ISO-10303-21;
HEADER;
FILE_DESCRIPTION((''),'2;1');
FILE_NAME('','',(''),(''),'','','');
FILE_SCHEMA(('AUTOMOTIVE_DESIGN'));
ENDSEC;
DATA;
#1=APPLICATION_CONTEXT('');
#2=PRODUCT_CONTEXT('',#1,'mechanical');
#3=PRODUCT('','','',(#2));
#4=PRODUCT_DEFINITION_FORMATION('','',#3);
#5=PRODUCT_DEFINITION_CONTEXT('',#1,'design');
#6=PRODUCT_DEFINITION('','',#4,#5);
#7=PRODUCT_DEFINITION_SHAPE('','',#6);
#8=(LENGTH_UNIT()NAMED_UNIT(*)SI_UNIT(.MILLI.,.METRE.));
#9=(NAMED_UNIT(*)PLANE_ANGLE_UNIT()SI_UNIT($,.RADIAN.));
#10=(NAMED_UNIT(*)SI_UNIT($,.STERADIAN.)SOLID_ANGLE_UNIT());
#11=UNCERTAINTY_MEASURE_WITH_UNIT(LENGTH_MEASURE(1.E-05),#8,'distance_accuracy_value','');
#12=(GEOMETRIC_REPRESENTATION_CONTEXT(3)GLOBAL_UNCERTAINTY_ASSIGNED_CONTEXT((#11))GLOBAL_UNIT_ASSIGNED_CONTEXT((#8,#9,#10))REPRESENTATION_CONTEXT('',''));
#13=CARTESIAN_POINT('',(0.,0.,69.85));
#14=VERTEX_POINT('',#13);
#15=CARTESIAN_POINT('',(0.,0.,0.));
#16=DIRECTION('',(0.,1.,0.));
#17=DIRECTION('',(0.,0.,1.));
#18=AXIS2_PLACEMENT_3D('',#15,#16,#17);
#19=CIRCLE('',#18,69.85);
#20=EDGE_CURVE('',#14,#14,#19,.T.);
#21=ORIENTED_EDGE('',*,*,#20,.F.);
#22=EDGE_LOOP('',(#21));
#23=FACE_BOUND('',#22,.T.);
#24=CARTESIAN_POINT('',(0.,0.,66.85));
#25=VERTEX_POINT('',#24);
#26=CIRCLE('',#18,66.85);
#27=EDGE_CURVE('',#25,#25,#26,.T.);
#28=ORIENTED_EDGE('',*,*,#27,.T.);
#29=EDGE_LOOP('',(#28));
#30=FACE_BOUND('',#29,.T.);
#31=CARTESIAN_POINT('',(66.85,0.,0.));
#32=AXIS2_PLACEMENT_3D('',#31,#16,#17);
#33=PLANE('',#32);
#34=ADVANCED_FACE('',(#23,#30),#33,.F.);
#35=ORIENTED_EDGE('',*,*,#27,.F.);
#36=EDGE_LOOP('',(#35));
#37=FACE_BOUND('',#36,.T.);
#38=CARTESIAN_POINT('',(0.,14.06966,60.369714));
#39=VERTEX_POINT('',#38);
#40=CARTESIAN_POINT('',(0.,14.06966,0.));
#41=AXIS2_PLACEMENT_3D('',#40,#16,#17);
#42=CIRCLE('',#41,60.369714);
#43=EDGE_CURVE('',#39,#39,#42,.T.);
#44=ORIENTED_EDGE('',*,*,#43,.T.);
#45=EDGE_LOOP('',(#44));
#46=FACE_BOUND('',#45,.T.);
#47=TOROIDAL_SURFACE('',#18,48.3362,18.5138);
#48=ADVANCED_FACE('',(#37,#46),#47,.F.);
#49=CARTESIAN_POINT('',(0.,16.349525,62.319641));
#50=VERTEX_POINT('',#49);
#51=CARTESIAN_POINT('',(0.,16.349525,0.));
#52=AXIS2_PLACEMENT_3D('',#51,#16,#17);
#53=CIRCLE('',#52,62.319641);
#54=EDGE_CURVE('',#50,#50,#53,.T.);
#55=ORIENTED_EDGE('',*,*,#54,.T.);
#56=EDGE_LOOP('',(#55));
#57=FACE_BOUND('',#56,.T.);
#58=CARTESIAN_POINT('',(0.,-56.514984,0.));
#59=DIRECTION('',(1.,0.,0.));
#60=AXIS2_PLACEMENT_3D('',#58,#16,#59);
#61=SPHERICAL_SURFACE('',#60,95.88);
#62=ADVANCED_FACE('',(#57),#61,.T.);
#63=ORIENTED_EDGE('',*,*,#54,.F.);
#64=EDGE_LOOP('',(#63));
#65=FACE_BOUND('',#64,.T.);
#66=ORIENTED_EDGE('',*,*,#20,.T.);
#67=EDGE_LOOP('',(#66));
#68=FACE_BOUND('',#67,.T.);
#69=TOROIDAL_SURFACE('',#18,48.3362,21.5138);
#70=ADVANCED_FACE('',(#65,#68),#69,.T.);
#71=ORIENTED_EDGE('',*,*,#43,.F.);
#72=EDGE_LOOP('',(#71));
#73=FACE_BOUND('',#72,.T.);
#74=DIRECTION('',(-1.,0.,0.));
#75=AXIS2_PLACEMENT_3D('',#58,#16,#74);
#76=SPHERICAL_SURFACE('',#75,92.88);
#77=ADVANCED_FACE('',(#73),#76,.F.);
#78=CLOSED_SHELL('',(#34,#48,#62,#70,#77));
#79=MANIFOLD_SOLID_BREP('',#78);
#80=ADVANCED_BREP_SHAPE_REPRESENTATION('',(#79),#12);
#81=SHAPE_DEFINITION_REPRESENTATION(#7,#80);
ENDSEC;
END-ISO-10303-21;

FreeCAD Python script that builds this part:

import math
import FreeCAD as App
import Part
import Sketcher
from FreeCAD import Vector

doc = App.newDocument("Part")
body = doc.addObject("PartDesign::Body", "Body")

# Sketch on XY plane
sketch1 = body.newObject("Sketcher::SketchObject", "Sketch")
sketch1.AttachmentSupport = (doc.getObject("XY_Plane"), [""])
sketch1.MapMode = "FlatFace"
sketch1.addGeometry(Part.LineSegment(Vector(0, 39.4, 0), Vector(0, 36.4, 0)), False)
sketch1.addGeometry(Part.ArcOfCircle(Part.Circle(Vector(0, -56.5, 0), Vector(0, 0, 1), 92.9), math.radians(49), math.radians(90)), False)
sketch1.addGeometry(Part.ArcOfCircle(Part.Circle(Vector(48.3, 0, 0), Vector(0, 0, 1), 18.5), math.radians(0), math.radians(49)), False)
sketch1.addGeometry(Part.LineSegment(Vector(66.8, 0, 0), Vector(69.8, 0, 0)), False)
sketch1.addGeometry(Part.ArcOfCircle(Part.Circle(Vector(48.3, 0, 0), Vector(0, 0, 1), 21.5), math.radians(0), math.radians(49)), False)
sketch1.addGeometry(Part.ArcOfCircle(Part.Circle(Vector(0, -56.5, 0), Vector(0, 0, 1), 95.9), math.radians(49), math.radians(90)), False)
sketch1.addConstraint(Sketcher.Constraint("Coincident", 0, 2, 1, 2))
sketch1.addConstraint(Sketcher.Constraint("Tangent", 1, 1, 2, 2))
sketch1.addConstraint(Sketcher.Constraint("Coincident", 2, 1, 3, 1))
sketch1.addConstraint(Sketcher.Constraint("Coincident", 3, 2, 4, 1))
sketch1.addConstraint(Sketcher.Constraint("Tangent", 4, 2, 5, 1))
sketch1.addConstraint(Sketcher.Constraint("Coincident", 5, 2, 0, 1))
sketch1.addConstraint(Sketcher.Constraint("Vertical", 0))
sketch1.addConstraint(Sketcher.Constraint("Horizontal", 3))
sketch1.addConstraint(Sketcher.Constraint("Coincident", 4, 3, 2, 3))
sketch1.addConstraint(Sketcher.Constraint("Coincident", 5, 3, 1, 3))
sketch1.addConstraint(Sketcher.Constraint("PointOnObject", 1, 3, -2))
sketch1.addConstraint(Sketcher.Constraint("PointOnObject", 2, 3, -1))
sketch1.addConstraint(Sketcher.Constraint("PointOnObject", 0, 2, -2))
sketch1.addConstraint(Sketcher.Constraint("PointOnObject", 2, 1, -1))
sketch1.addConstraint(Sketcher.Constraint("DistanceX", 3, 1, 3, 2, 3.0))
sketch1.addConstraint(Sketcher.Constraint("Radius", 1, 92.88))
sketch1.addConstraint(Sketcher.Constraint("Radius", 2, 18.5138))
sketch1.addConstraint(Sketcher.Constraint("DistanceX", -1, 1, 2, 1, 66.85))
revolution = body.newObject("PartDesign::Revolution", "Revolution")
revolution.Profile = sketch1
revolution.ReferenceAxis = (sketch1, ["V_Axis"])
revolution.Angle = 360

doc.recompute()
